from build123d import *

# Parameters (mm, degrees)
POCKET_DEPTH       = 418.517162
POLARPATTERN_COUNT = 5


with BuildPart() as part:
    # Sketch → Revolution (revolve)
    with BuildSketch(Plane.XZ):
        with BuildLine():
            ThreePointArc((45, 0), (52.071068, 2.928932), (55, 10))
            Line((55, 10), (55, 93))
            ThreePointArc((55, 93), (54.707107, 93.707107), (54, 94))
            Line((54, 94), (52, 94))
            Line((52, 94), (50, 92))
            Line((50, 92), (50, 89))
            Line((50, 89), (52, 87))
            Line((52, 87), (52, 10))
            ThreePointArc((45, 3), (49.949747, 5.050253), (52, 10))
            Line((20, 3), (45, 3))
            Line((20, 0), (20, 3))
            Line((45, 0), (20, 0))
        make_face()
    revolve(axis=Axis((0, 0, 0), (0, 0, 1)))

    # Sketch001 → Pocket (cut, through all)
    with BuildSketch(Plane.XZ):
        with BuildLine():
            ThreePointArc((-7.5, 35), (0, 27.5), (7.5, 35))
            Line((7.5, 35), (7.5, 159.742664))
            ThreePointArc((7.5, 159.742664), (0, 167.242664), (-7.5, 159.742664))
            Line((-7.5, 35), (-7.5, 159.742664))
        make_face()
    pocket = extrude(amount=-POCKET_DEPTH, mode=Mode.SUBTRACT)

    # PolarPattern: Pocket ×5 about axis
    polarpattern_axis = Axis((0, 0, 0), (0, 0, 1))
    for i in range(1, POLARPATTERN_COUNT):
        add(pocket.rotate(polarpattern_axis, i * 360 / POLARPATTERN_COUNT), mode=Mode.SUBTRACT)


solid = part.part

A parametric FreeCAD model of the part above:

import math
import FreeCAD as App
import Part
import Sketcher
from FreeCAD import Vector
Q = App.Units.Quantity

doc = App.newDocument("Part")
body = doc.addObject("PartDesign::Body", "Body")

# Sketch on XZ plane
sketch1 = body.newObject("Sketcher::SketchObject", "Sketch")
sketch1.AttachmentSupport = (doc.getObject("XZ_Plane"), [""])
sketch1.MapMode = "FlatFace"
sketch1.addGeometry([
    Part.ArcOfCircle(Part.Circle(Vector(45.000001, 9.999999, 0), Vector(0, 0, 1), 9.999999), math.radians(-90.000004), math.radians(0.000004)),  # 0
    Part.LineSegment(Vector(55, 10, 0), Vector(55, 93, 0)),  # 1
    Part.ArcOfCircle(Part.Circle(Vector(54.000001, 93.000001, 0), Vector(0, 0, 1), 0.999999), math.radians(-0.000043), math.radians(90.000043)),  # 2
    Part.LineSegment(Vector(54, 94, 0), Vector(52, 94, 0)),  # 3
    Part.LineSegment(Vector(52, 94, 0), Vector(50, 92, 0)),  # 4
    Part.LineSegment(Vector(50, 92, 0), Vector(50, 89, 0)),  # 5
    Part.LineSegment(Vector(50, 89, 0), Vector(52, 87, 0)),  # 6
    Part.LineSegment(Vector(52, 87, 0), Vector(52, 10, 0)),  # 7
    Part.ArcOfCircle(Part.Circle(Vector(44.999998, 10.000002, 0), Vector(0, 0, 1), 7.000002), math.radians(-89.999987), math.radians(-0.000013)),  # 8
    Part.LineSegment(Vector(45, 3, 0), Vector(20, 3, 0)),  # 9
    Part.LineSegment(Vector(20, 3, 0), Vector(20, 0, 0)),  # 10
    Part.LineSegment(Vector(20, 0, 0), Vector(45, 0, 0)),  # 11
], False)
sketch1.addConstraint([
    Sketcher.Constraint("Tangent", 0, 2, 1, 1),
    Sketcher.Constraint("Tangent", 1, 2, 2, 1),
    Sketcher.Constraint("Tangent", 2, 2, 3, 1),
    Sketcher.Constraint("Coincident", 3, 2, 4, 1),
    Sketcher.Constraint("Coincident", 4, 2, 5, 1),
    Sketcher.Constraint("Coincident", 5, 2, 6, 1),
    Sketcher.Constraint("Coincident", 6, 2, 7, 1),
    Sketcher.Constraint("Tangent", 7, 2, 8, 2),
    Sketcher.Constraint("Tangent", 8, 1, 9, 1),
    Sketcher.Constraint("Coincident", 9, 2, 10, 1),
    Sketcher.Constraint("Coincident", 10, 2, 11, 1),
    Sketcher.Constraint("Tangent", 11, 2, 0, 1),
    Sketcher.Constraint("Vertical", 1),
    Sketcher.Constraint("Horizontal", 3),
    Sketcher.Constraint("Vertical", 5),
    Sketcher.Constraint("Vertical", 7),
    Sketcher.Constraint("Horizontal", 9),
    Sketcher.Constraint("Vertical", 10),
    Sketcher.Constraint("Horizontal", 11),
    Sketcher.Constraint("Coincident", 8, 3, 0, 3),
    Sketcher.Constraint("PointOnObject", 10, 2, -1),
    Sketcher.Constraint("Perpendicular", 4, 6),
    Sketcher.Constraint("Vertical", 3, 2, 6, 2),
    Sketcher.Constraint("Equal", 5, 10),
    Sketcher.Constraint("Equal", 4, 6),
    Sketcher.Constraint("Radius", 0, Q("9.999999 mm")),
    Sketcher.Constraint("Radius", 2, Q("0.999999 mm")),
    Sketcher.Constraint("Radius", 8, Q("7.000002 mm")),
    Sketcher.Constraint("DistanceX", 9, 2, 9, 1, Q("25 mm")),
    Sketcher.Constraint("DistanceY", 1, 1, 1, 2, Q("83 mm")),
    Sketcher.Constraint("DistanceY", 7, 2, 7, 1, Q("77 mm")),
    Sketcher.Constraint("DistanceX", -1, 1, 0, 3, Q("45.000001 mm")),
])
revolution = body.newObject("PartDesign::Revolution", "Revolution")
revolution.Profile = sketch1
revolution.ReferenceAxis = (sketch1, ["V_Axis"])
revolution.Angle = 360

# Sketch on XZ plane
sketch2 = body.newObject("Sketcher::SketchObject", "Sketch001")
sketch2.AttachmentSupport = (doc.getObject("XZ_Plane"), [""])
sketch2.MapMode = "FlatFace"
sketch2.addGeometry([
    Part.ArcOfCircle(Part.Circle(Vector(0, 35, 0), Vector(0, 0, 1), 7.5), math.radians(180), math.radians(360)),
    Part.LineSegment(Vector(7.5, 35, 0), Vector(7.5, 159.742664, 0)),
    Part.ArcOfCircle(Part.Circle(Vector(0, 159.742664, 0), Vector(0, 0, 1), 7.5), math.radians(0), math.radians(180)),
    Part.LineSegment(Vector(-7.5, 159.742664, 0), Vector(-7.5, 35, 0)),
], False)
sketch2.addConstraint([
    Sketcher.Constraint("Tangent", 0, 2, 1, 1),
    Sketcher.Constraint("Tangent", 1, 2, 2, 1),
    Sketcher.Constraint("Tangent", 2, 2, 3, 1),
    Sketcher.Constraint("Tangent", 3, 2, 0, 1),
    Sketcher.Constraint("Vertical", 1),
    Sketcher.Constraint("Vertical", 3),
    Sketcher.Constraint("PointOnObject", 0, 3, -2),
    Sketcher.Constraint("Radius", 0, Q("7.5 mm")),
    Sketcher.Constraint("DistanceY", -1, 1, 0, 3, Q("35 mm")),
    Sketcher.Constraint("DistanceY", 1, 1, 1, 2, Q("124.742664 mm")),
])
pocket1 = body.newObject("PartDesign::Pocket", "Pocket")
pocket1.Profile = sketch2
pocket1.Type = "ThroughAll"
doc.recompute()

polarpattern = body.newObject("PartDesign::PolarPattern", "PolarPattern")
polarpattern.Originals = [pocket1]
polarpattern.Axis = (doc.getObject("Z_Axis"), [""])
polarpattern.Angle = 360
polarpattern.Occurrences = 5
body.Tip = polarpattern

doc.recompute()
